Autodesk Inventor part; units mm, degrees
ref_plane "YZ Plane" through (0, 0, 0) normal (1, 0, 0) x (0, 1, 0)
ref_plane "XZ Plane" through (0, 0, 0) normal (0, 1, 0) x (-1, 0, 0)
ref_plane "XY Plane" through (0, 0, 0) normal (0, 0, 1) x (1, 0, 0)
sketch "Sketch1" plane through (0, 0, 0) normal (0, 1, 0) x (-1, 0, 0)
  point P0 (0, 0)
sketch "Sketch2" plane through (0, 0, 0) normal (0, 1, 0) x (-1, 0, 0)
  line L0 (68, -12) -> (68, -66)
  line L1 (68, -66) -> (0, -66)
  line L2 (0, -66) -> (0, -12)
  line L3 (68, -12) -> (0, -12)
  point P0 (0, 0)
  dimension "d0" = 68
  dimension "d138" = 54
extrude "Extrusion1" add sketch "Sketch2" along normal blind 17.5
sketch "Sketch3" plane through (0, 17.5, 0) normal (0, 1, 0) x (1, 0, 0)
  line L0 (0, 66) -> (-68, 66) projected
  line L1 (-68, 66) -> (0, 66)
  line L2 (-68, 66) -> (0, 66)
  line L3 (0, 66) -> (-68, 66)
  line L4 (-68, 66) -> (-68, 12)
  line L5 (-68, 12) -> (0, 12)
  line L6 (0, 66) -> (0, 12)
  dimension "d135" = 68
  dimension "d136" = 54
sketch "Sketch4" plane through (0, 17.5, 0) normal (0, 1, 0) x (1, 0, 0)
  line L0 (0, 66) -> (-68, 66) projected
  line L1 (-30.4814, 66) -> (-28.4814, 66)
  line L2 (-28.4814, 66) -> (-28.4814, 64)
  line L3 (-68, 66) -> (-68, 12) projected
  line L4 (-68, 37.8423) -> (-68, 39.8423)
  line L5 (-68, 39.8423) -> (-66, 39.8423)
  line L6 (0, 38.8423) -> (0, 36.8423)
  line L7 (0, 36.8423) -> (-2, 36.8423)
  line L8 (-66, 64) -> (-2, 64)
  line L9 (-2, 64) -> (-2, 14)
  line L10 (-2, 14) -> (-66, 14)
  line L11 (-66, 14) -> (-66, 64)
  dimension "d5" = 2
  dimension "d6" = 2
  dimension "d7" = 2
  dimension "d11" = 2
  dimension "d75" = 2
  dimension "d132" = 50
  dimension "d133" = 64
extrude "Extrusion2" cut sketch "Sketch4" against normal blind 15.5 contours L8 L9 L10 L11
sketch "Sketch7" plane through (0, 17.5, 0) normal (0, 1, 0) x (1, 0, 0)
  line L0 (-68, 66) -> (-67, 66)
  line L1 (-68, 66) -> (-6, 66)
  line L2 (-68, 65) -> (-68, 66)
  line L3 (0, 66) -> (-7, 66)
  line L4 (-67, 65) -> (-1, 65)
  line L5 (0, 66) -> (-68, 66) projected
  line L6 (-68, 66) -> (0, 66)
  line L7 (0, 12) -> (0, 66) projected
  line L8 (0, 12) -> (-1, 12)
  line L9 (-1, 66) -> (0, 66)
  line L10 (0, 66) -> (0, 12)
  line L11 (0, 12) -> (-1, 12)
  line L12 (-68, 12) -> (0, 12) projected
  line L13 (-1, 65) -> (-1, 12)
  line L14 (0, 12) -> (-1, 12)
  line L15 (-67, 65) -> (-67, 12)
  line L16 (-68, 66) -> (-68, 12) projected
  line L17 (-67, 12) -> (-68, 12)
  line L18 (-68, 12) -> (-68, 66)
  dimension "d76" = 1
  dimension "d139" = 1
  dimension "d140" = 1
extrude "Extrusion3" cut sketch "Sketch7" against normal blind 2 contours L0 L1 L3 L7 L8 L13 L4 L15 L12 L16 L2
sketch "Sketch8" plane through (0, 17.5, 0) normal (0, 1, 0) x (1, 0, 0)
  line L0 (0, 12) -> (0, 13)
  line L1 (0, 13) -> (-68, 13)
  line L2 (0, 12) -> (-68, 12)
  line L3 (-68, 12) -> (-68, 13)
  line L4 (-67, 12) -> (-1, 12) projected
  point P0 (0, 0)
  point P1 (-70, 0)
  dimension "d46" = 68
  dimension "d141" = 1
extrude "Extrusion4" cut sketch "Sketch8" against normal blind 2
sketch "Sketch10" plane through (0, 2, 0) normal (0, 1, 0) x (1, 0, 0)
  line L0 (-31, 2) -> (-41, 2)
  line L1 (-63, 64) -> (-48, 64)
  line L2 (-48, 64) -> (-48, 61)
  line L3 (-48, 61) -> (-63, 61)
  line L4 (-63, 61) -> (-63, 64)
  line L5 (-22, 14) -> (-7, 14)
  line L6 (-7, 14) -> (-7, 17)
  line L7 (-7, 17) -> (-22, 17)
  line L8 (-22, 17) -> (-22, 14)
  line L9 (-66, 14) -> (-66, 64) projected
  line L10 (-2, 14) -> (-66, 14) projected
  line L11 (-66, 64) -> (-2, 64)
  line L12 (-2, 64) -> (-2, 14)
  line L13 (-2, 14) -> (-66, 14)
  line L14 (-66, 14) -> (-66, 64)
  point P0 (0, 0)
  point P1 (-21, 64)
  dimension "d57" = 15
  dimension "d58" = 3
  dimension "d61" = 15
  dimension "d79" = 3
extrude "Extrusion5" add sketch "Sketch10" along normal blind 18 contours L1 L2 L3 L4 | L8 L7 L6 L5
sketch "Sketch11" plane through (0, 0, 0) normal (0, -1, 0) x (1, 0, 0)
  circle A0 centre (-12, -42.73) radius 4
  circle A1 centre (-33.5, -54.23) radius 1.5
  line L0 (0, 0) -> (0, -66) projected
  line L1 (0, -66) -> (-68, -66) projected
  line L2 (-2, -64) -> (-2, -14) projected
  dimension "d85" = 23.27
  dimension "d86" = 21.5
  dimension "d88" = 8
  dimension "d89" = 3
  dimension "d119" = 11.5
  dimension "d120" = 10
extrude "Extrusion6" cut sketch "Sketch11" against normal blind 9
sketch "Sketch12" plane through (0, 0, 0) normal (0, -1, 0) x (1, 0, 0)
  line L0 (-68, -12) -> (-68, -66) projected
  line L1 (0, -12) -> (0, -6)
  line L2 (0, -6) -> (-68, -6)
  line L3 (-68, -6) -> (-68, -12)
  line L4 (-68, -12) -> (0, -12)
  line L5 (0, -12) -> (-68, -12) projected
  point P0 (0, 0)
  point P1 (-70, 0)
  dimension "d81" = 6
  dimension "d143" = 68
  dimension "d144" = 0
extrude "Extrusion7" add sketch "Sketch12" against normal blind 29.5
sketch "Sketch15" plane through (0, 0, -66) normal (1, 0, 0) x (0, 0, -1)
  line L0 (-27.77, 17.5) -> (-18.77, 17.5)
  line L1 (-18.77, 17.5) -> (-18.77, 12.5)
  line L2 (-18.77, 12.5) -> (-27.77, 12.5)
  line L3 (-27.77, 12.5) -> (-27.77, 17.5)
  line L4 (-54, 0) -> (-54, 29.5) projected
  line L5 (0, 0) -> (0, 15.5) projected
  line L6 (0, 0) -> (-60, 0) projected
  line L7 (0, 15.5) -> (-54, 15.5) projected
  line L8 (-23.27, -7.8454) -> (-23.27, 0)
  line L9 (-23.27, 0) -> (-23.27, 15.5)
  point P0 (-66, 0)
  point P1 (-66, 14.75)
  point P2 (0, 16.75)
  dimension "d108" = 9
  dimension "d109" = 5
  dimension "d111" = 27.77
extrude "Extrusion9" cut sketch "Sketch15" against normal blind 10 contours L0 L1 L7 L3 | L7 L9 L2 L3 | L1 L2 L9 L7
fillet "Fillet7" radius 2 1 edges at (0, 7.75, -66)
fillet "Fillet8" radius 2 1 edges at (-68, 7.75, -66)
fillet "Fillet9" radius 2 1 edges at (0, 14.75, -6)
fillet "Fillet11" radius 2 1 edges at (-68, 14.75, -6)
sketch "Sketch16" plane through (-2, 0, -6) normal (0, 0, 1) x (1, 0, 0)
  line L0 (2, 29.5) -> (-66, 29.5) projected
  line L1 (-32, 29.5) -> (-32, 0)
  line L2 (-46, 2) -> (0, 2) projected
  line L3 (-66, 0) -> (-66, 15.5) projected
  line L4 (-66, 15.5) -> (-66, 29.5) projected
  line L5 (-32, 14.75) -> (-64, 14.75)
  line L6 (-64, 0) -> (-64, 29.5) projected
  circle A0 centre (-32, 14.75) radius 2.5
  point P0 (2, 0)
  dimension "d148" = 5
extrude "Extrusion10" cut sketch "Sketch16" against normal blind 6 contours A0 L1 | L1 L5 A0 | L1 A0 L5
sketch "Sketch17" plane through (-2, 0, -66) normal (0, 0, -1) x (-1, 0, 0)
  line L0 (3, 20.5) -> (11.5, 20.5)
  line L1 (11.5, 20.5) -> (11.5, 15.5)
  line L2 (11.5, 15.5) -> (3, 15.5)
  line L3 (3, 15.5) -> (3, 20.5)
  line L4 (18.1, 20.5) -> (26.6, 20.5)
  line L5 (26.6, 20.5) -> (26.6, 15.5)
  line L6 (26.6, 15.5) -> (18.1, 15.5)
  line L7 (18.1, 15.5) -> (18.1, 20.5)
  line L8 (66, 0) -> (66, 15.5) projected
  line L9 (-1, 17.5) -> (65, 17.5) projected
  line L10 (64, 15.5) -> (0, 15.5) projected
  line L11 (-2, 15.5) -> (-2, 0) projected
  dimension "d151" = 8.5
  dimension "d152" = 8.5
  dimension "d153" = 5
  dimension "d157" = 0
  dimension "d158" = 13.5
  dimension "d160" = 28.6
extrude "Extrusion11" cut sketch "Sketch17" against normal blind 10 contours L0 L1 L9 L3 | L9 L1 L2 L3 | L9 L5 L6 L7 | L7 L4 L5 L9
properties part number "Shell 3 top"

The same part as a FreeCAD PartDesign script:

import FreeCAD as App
import Part
import Sketcher

V = App.Vector
Q = App.Units.Quantity


def edges_at(feature, points):
    """Names of the edges that pass closest to the given points."""
    edges = feature.Shape.Edges
    near = lambda p: min(range(len(edges)), key=lambda i: edges[i].distToShape(Part.Vertex(*p))[0])
    return sorted({f"Edge{near(p) + 1}" for p in points})

doc = App.newDocument("Part")
body = doc.addObject("PartDesign::Body", "Body")

sketch1 = body.newObject("Sketcher::SketchObject", "Sketch")
sketch1.AttachmentSupport = (doc.getObject("XZ_Plane"), [""])
sketch1.MapMode = "FlatFace"
sketch1.addGeometry([
    Part.LineSegment(V(-68, -66, 0), V(-68, -12, 0)),
    Part.LineSegment(V(-68, -12, 0), V(0, -12, 0)),
    Part.LineSegment(V(0, -12, 0), V(0, -66, 0)),
    Part.LineSegment(V(0, -66, 0), V(-68, -66, 0)),
], False)
sketch1.addConstraint([
    Sketcher.Constraint("Coincident", 0, 2, 1, 1),
    Sketcher.Constraint("Coincident", 1, 2, 2, 1),
    Sketcher.Constraint("Coincident", 2, 2, 3, 1),
    Sketcher.Constraint("Coincident", 3, 2, 0, 1),
    Sketcher.Constraint("Vertical", 0),
    Sketcher.Constraint("Horizontal", 1),
    Sketcher.Constraint("Vertical", 2),
    Sketcher.Constraint("Horizontal", 3),
    Sketcher.Constraint("PointOnObject", 1, 2, -2),
    Sketcher.Constraint("DistanceX", 1, 1, 1, 2, Q("68 mm")),
    Sketcher.Constraint("DistanceY", 0, 1, 0, 2, Q("54 mm")),
    Sketcher.Constraint("DistanceY", 0, 2, -1, 1, Q("12 mm")),
])
pad1 = body.newObject("PartDesign::Pad", "Pad")
pad1.Profile = sketch1
pad1.Length = 17.5
pad1.Reversed = True

sketch2 = body.newObject("Sketcher::SketchObject", "Sketch001")
sketch2.AttachmentSupport = (doc.getObject("XZ_Plane"), [""])
sketch2.MapMode = "FlatFace"
sketch2.AttachmentOffset = App.Placement(V(0, 0, -17.5), App.Rotation())
sketch2.addGeometry([
    Part.LineSegment(V(-2, -64, 0), V(-66, -64, 0)),
    Part.LineSegment(V(-66, -64, 0), V(-66, -14, 0)),
    Part.LineSegment(V(-66, -14, 0), V(-2, -14, 0)),
    Part.LineSegment(V(-2, -14, 0), V(-2, -64, 0)),
], False)
sketch2.addConstraint([
    Sketcher.Constraint("Coincident", 0, 2, 1, 1),
    Sketcher.Constraint("Coincident", 1, 2, 2, 1),
    Sketcher.Constraint("Coincident", 2, 2, 3, 1),
    Sketcher.Constraint("Coincident", 3, 2, 0, 1),
    Sketcher.Constraint("Horizontal", 0),
    Sketcher.Constraint("Vertical", 1),
    Sketcher.Constraint("Horizontal", 2),
    Sketcher.Constraint("Vertical", 3),
    Sketcher.Constraint("DistanceX", 0, 2, 0, 1, Q("64 mm")),
    Sketcher.Constraint("DistanceY", 1, 1, 1, 2, Q("50 mm")),
    Sketcher.Constraint("DistanceY", 0, 2, -1, 1, Q("64 mm")),
    Sketcher.Constraint("DistanceX", 2, 2, -1, 1, Q("2 mm")),
])
pocket1 = body.newObject("PartDesign::Pocket", "Pocket")
pocket1.Profile = sketch2
pocket1.Length = 15.5
pocket1.Reversed = True

sketch3 = body.newObject("Sketcher::SketchObject", "Sketch002")
sketch3.AttachmentSupport = (doc.getObject("XZ_Plane"), [""])
sketch3.MapMode = "FlatFace"
sketch3.AttachmentOffset = App.Placement(V(0, 0, -17.5), App.Rotation())
sketch3.addGeometry([
    Part.LineSegment(V(0, -66, 0), V(-68, -66, 0)),
    Part.LineSegment(V(-68, -66, 0), V(-68, -12, 0)),
    Part.LineSegment(V(-68, -12, 0), V(-67, -12, 0)),
    Part.LineSegment(V(-67, -12, 0), V(-67, -65, 0)),
    Part.LineSegment(V(-67, -65, 0), V(-1, -65, 0)),
    Part.LineSegment(V(-1, -65, 0), V(-1, -12, 0)),
    Part.LineSegment(V(-1, -12, 0), V(0, -12, 0)),
    Part.LineSegment(V(0, -12, 0), V(0, -66, 0)),
], False)
sketch3.addConstraint([
    Sketcher.Constraint("Coincident", 0, 2, 1, 1),
    Sketcher.Constraint("Coincident", 1, 2, 2, 1),
    Sketcher.Constraint("Coincident", 2, 2, 3, 1),
    Sketcher.Constraint("Coincident", 3, 2, 4, 1),
    Sketcher.Constraint("Coincident", 4, 2, 5, 1),
    Sketcher.Constraint("Coincident", 5, 2, 6, 1),
    Sketcher.Constraint("Coincident", 6, 2, 7, 1),
    Sketcher.Constraint("Coincident", 7, 2, 0, 1),
    Sketcher.Constraint("Horizontal", 0),
    Sketcher.Constraint("Vertical", 1),
    Sketcher.Constraint("Horizontal", 2),
    Sketcher.Constraint("Vertical", 3),
    Sketcher.Constraint("Horizontal", 4),
    Sketcher.Constraint("Vertical", 5),
    Sketcher.Constraint("Horizontal", 6),
    Sketcher.Constraint("Vertical", 7),
    Sketcher.Constraint("PointOnObject", 6, 2, -2),
    Sketcher.Constraint("Horizontal", 2, 2, 5, 2),
    Sketcher.Constraint("Equal", 2, 6),
    Sketcher.Constraint("DistanceX", 2, 1, 2, 2, Q("1 mm")),
    Sketcher.Constraint("DistanceY", 0, 2, 3, 2, Q("1 mm")),
    Sketcher.Constraint("DistanceX", 0, 2, 0, 1, Q("68 mm")),
    Sketcher.Constraint("DistanceY", 1, 1, 1, 2, Q("54 mm")),
    Sketcher.Constraint("DistanceY", 0, 2, -1, 1, Q("66 mm")),
])
pocket2 = body.newObject("PartDesign::Pocket", "Pocket001")
pocket2.Profile = sketch3
pocket2.Length = 2
pocket2.Reversed = True

sketch4 = body.newObject("Sketcher::SketchObject", "Sketch003")
sketch4.AttachmentSupport = (doc.getObject("XZ_Plane"), [""])
sketch4.MapMode = "FlatFace"
sketch4.AttachmentOffset = App.Placement(V(0, 0, -17.5), App.Rotation())
sketch4.addGeometry([
    Part.LineSegment(V(-68, -12, 0), V(0, -12, 0)),
    Part.LineSegment(V(0, -12, 0), V(0, -13, 0)),
    Part.LineSegment(V(0, -13, 0), V(-68, -13, 0)),
    Part.LineSegment(V(-68, -13, 0), V(-68, -12, 0)),
], False)
sketch4.addConstraint([
    Sketcher.Constraint("Coincident", 0, 2, 1, 1),
    Sketcher.Constraint("Coincident", 1, 2, 2, 1),
    Sketcher.Constraint("Coincident", 2, 2, 3, 1),
    Sketcher.Constraint("Coincident", 3, 2, 0, 1),
    Sketcher.Constraint("Horizontal", 0),
    Sketcher.Constraint("Vertical", 1),
    Sketcher.Constraint("Horizontal", 2),
    Sketcher.Constraint("Vertical", 3),
    Sketcher.Constraint("PointOnObject", 0, 2, -2),
    Sketcher.Constraint("DistanceX", 0, 1, 0, 2, Q("68 mm")),
    Sketcher.Constraint("DistanceY", 1, 2, 1, 1, Q("1 mm")),
    Sketcher.Constraint("DistanceY", 0, 2, -1, 1, Q("12 mm")),
])
pocket3 = body.newObject("PartDesign::Pocket", "Pocket002")
pocket3.Profile = sketch4
pocket3.Length = 2
pocket3.Reversed = True

sketch5 = body.newObject("Sketcher::SketchObject", "Sketch004")
sketch5.AttachmentSupport = (doc.getObject("XZ_Plane"), [""])
sketch5.MapMode = "FlatFace"
sketch5.AttachmentOffset = App.Placement(V(0, 0, -2), App.Rotation())
sketch5.addGeometry([
    Part.LineSegment(V(-48, -64, 0), V(-63, -64, 0)),
    Part.LineSegment(V(-63, -64, 0), V(-63, -61, 0)),
    Part.LineSegment(V(-63, -61, 0), V(-48, -61, 0)),
    Part.LineSegment(V(-48, -61, 0), V(-48, -64, 0)),
    Part.LineSegment(V(-22, -17, 0), V(-22, -14, 0)),
    Part.LineSegment(V(-22, -14, 0), V(-7, -14, 0)),
    Part.LineSegment(V(-7, -14, 0), V(-7, -17, 0)),
    Part.LineSegment(V(-7, -17, 0), V(-22, -17, 0)),
], False)
sketch5.addConstraint([
    Sketcher.Constraint("Coincident", 0, 2, 1, 1),
    Sketcher.Constraint("Coincident", 1, 2, 2, 1),
    Sketcher.Constraint("Coincident", 2, 2, 3, 1),
    Sketcher.Constraint("Coincident", 3, 2, 0, 1),
    Sketcher.Constraint("Coincident", 4, 2, 5, 1),
    Sketcher.Constraint("Coincident", 5, 2, 6, 1),
    Sketcher.Constraint("Coincident", 6, 2, 7, 1),
    Sketcher.Constraint("Coincident", 7, 2, 4, 1),
    Sketcher.Constraint("Horizontal", 0),
    Sketcher.Constraint("Vertical", 1),
    Sketcher.Constraint("Horizontal", 2),
    Sketcher.Constraint("Vertical", 3),
    Sketcher.Constraint("Vertical", 4),
    Sketcher.Constraint("Horizontal", 5),
    Sketcher.Constraint("Vertical", 6),
    Sketcher.Constraint("Horizontal", 7),
    Sketcher.Constraint("Equal", 2, 5),
    Sketcher.Constraint("Equal", 3, 4),
    Sketcher.Constraint("DistanceX", 0, 2, 0, 1, Q("15 mm")),
    Sketcher.Constraint("DistanceY", 1, 1, 1, 2, Q("3 mm")),
    Sketcher.Constraint("DistanceX", 0, 2, -1, 1, Q("63 mm")),
    Sketcher.Constraint("DistanceY", 0, 2, -1, 1, Q("64 mm")),
    Sketcher.Constraint("DistanceX", 4, 2, -1, 1, Q("22 mm")),
    Sketcher.Constraint("DistanceY", 4, 2, -1, 1, Q("14 mm")),
])
pad2 = body.newObject("PartDesign::Pad", "Pad001")
pad2.Profile = sketch5
pad2.Length = 18
pad2.Reversed = True

sketch6 = body.newObject("Sketcher::SketchObject", "Sketch005")
sketch6.AttachmentSupport = (doc.getObject("XZ_Plane"), [""])
sketch6.MapMode = "FlatFace"
sketch6.addGeometry([
    Part.Circle(V(-12, -42.7, 0), V(0, 0, 1), 4),
    Part.Circle(V(-33.5, -54.2, 0), V(0, 0, 1), 1.5),
], False)
sketch6.addConstraint([
    Sketcher.Constraint("Diameter", 0, Q("8 mm")),
    Sketcher.Constraint("Diameter", 1, Q("3 mm")),
    Sketcher.Constraint("DistanceX", 1, 3, 0, 3, Q("21.5 mm")),
    Sketcher.Constraint("DistanceY", 1, 3, 0, 3, Q("11.5 mm")),
    Sketcher.Constraint("DistanceX", 0, 3, -1, 1, Q("12 mm")),
    Sketcher.Constraint("DistanceY", 0, 3, -1, 1, Q("42.73 mm")),
])
pocket4 = body.newObject("PartDesign::Pocket", "Pocket003")
pocket4.Profile = sketch6
pocket4.Length = 9

sketch7 = body.newObject("Sketcher::SketchObject", "Sketch006")
sketch7.AttachmentSupport = (doc.getObject("XZ_Plane"), [""])
sketch7.MapMode = "FlatFace"
sketch7.addGeometry([
    Part.LineSegment(V(-68, -12, 0), V(0, -12, 0)),
    Part.LineSegment(V(0, -12, 0), V(0, -6, 0)),
    Part.LineSegment(V(0, -6, 0), V(-68, -6, 0)),
    Part.LineSegment(V(-68, -6, 0), V(-68, -12, 0)),
], False)
sketch7.addConstraint([
    Sketcher.Constraint("Coincident", 0, 2, 1, 1),
    Sketcher.Constraint("Coincident", 1, 2, 2, 1),
    Sketcher.Constraint("Coincident", 2, 2, 3, 1),
    Sketcher.Constraint("Coincident", 3, 2, 0, 1),
    Sketcher.Constraint("Horizontal", 0),
    Sketcher.Constraint("Vertical", 1),
    Sketcher.Constraint("Horizontal", 2),
    Sketcher.Constraint("Vertical", 3),
    Sketcher.Constraint("PointOnObject", 0, 2, -2),
    Sketcher.Constraint("DistanceX", 0, 1, 0, 2, Q("68 mm")),
    Sketcher.Constraint("DistanceY", 1, 1, 1, 2, Q("6 mm")),
    Sketcher.Constraint("DistanceY", 1, 2, -1, 1, Q("6 mm")),
])
pad3 = body.newObject("PartDesign::Pad", "Pad002")
pad3.Profile = sketch7
pad3.Length = 29.5
pad3.Reversed = True

sketch8 = body.newObject("Sketcher::SketchObject", "Sketch007")
sketch8.AttachmentSupport = (doc.getObject("YZ_Plane"), [""])
sketch8.MapMode = "FlatFace"
sketch8.addGeometry([
    Part.LineSegment(V(18, -47, 0), V(18, -38, 0)),
    Part.LineSegment(V(18, -38, 0), V(12, -38, 0)),
    Part.LineSegment(V(12, -38, 0), V(12, -47, 0)),
    Part.LineSegment(V(12, -47, 0), V(18, -47, 0)),
], False)
sketch8.addConstraint([
    Sketcher.Constraint("Coincident", 0, 2, 1, 1),
    Sketcher.Constraint("Coincident", 1, 2, 2, 1),
    Sketcher.Constraint("Coincident", 2, 2, 3, 1),
    Sketcher.Constraint("Coincident", 3, 2, 0, 1),
    Sketcher.Constraint("Vertical", 0),
    Sketcher.Constraint("Horizontal", 1),
    Sketcher.Constraint("Vertical", 2),
    Sketcher.Constraint("Horizontal", 3),
    Sketcher.Constraint("DistanceX", 1, 2, 1, 1, Q("5 mm")),
    Sketcher.Constraint("DistanceY", 0, 1, 0, 2, Q("9 mm")),
    Sketcher.Constraint("DistanceX", -1, 1, 0, 2, Q("17.5 mm")),
    Sketcher.Constraint("DistanceY", 0, 2, -1, 1, Q("38.23 mm")),
])
pocket5 = body.newObject("PartDesign::Pocket", "Pocket004")
pocket5.Profile = sketch8
pocket5.Length = 10
doc.recompute()

fillet = body.newObject("PartDesign::Fillet", "Fillet")
fillet.Base = (pocket5, edges_at(pocket5, [(0, 7.75, -66)]))
fillet.Radius = 2
doc.recompute()

fillet2 = body.newObject("PartDesign::Fillet", "Fillet001")
fillet2.Base = (fillet, edges_at(fillet, [(-68, 7.75, -66)]))
fillet2.Radius = 2
doc.recompute()

fillet3 = body.newObject("PartDesign::Fillet", "Fillet002")
fillet3.Base = (fillet2, edges_at(fillet2, [(0, 14.75, -6)]))
fillet3.Radius = 2
doc.recompute()

fillet4 = body.newObject("PartDesign::Fillet", "Fillet003")
fillet4.Base = (fillet3, edges_at(fillet3, [(-68, 14.75, -6)]))
fillet4.Radius = 2

sketch9 = body.newObject("Sketcher::SketchObject", "Sketch008")
sketch9.AttachmentSupport = (doc.getObject("XY_Plane"), [""])
sketch9.MapMode = "FlatFace"
sketch9.AttachmentOffset = App.Placement(V(0, 0, -6), App.Rotation())
sketch9.addGeometry(Part.Circle(V(-34, 14.8, 0), V(0, 0, 1), 2.5), False)
sketch9.addConstraint([
    Sketcher.Constraint("Diameter", 0, Q("5 mm")),
    Sketcher.Constraint("DistanceX", 0, 3, -1, 1, Q("34 mm")),
    Sketcher.Constraint("DistanceY", -1, 1, 0, 3, Q("14.75 mm")),
])
pocket6 = body.newObject("PartDesign::Pocket", "Pocket005")
pocket6.Profile = sketch9
pocket6.Length = 6

sketch10 = body.newObject("Sketcher::SketchObject", "Sketch009")
sketch10.AttachmentSupport = (doc.getObject("XY_Plane"), [""])
sketch10.MapMode = "FlatFace"
sketch10.AttachmentOffset = App.Placement(V(0, 0, -66), App.Rotation())
sketch10.addGeometry([
    Part.LineSegment(V(-14, 20, 0), V(-5, 20, 0)),
    Part.LineSegment(V(-5, 20, 0), V(-5, 16, 0)),
    Part.LineSegment(V(-5, 16, 0), V(-14, 16, 0)),
    Part.LineSegment(V(-14, 16, 0), V(-14, 20, 0)),
    Part.LineSegment(V(-29, 16, 0), V(-29, 20, 0)),
    Part.LineSegment(V(-29, 20, 0), V(-20, 20, 0)),
    Part.LineSegment(V(-20, 20, 0), V(-20, 16, 0)),
    Part.LineSegment(V(-20, 16, 0), V(-29, 16, 0)),
], False)
sketch10.addConstraint([
    Sketcher.Constraint("Coincident", 0, 2, 1, 1),
    Sketcher.Constraint("Coincident", 1, 2, 2, 1),
    Sketcher.Constraint("Coincident", 2, 2, 3, 1),
    Sketcher.Constraint("Coincident", 3, 2, 0, 1),
    Sketcher.Constraint("Coincident", 4, 2, 5, 1),
    Sketcher.Constraint("Coincident", 5, 2, 6, 1),
    Sketcher.Constraint("Coincident", 6, 2, 7, 1),
    Sketcher.Constraint("Coincident", 7, 2, 4, 1),
    Sketcher.Constraint("Horizontal", 0),
    Sketcher.Constraint("Vertical", 1),
    Sketcher.Constraint("Horizontal", 2),
    Sketcher.Constraint("Vertical", 3),
    Sketcher.Constraint("Vertical", 4),
    Sketcher.Constraint("Horizontal", 5),
    Sketcher.Constraint("Vertical", 6),
    Sketcher.Constraint("Horizontal", 7),
    Sketcher.Constraint("Horizontal", 3, 2, 4, 2),
    Sketcher.Constraint("Horizontal", 2, 2, 6, 2),
    Sketcher.Constraint("Equal", 2, 5),
    Sketcher.Constraint("DistanceY", 1, 2, 1, 1, Q("5 mm")),
    Sketcher.Constraint("DistanceX", 0, 1, 0, 2, Q("8.5 mm")),
    Sketcher.Constraint("DistanceX", 0, 2, -1, 1, Q("5 mm")),
    Sketcher.Constraint("DistanceX", 4, 2, -1, 1, Q("28.6 mm")),
    Sketcher.Constraint("DistanceY", -1, 1, 0, 2, Q("20.5 mm")),
])
pocket7 = body.newObject("PartDesign::Pocket", "Pocket006")
pocket7.Profile = sketch10
pocket7.Length = 10
pocket7.Reversed = True

doc.recompute()
